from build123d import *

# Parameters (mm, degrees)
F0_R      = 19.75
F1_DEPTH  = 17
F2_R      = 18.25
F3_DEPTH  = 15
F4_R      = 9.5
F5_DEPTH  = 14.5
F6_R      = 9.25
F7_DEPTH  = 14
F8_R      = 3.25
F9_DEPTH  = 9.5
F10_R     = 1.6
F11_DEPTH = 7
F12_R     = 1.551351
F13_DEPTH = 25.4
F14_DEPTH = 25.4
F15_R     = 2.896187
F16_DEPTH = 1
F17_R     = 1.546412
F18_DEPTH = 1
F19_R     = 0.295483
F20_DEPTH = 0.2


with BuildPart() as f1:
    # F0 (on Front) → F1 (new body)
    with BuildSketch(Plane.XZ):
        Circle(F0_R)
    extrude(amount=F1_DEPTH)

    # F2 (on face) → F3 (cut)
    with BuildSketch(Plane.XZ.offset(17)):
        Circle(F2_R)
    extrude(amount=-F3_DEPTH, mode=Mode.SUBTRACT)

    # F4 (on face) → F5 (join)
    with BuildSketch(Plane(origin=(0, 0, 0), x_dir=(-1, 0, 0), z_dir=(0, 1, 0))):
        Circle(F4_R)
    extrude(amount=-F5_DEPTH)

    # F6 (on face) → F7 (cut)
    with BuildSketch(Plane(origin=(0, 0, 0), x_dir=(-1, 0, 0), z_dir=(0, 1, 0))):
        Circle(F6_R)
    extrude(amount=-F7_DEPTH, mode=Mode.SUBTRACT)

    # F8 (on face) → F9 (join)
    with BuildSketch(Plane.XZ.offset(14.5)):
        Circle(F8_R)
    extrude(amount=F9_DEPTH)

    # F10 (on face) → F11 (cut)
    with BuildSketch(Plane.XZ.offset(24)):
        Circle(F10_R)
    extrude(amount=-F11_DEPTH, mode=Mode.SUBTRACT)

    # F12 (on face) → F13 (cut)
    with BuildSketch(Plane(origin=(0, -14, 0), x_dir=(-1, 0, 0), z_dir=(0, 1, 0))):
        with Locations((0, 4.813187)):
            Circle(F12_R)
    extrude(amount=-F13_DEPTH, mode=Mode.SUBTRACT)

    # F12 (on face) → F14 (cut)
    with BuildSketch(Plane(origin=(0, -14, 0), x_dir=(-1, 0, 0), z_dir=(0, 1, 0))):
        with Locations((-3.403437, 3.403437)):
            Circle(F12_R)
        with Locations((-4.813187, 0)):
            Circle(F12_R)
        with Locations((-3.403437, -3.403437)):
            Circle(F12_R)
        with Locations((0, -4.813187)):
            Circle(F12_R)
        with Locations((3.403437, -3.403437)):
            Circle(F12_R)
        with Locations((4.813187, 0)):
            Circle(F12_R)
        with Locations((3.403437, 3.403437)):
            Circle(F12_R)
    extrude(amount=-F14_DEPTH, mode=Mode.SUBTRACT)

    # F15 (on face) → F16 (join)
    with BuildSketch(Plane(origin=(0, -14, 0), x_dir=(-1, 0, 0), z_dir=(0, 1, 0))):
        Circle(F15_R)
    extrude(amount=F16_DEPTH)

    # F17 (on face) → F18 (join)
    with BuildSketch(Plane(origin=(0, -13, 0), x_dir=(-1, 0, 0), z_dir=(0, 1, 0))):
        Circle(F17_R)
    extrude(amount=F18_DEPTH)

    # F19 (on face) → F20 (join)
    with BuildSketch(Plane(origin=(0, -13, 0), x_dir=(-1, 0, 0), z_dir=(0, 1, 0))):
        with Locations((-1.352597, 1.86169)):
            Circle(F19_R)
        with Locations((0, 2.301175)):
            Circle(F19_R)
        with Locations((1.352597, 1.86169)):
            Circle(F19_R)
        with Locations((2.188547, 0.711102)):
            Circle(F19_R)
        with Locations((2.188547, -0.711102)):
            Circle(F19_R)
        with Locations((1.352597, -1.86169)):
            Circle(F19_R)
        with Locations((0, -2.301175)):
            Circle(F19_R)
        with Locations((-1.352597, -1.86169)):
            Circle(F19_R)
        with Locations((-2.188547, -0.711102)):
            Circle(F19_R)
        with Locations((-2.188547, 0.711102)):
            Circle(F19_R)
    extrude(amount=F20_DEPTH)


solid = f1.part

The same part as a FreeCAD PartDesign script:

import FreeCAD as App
import Part
import Sketcher

doc = App.newDocument("Part")
body = doc.addObject("PartDesign::Body", "Body")

sketch1 = doc.addObject("Sketcher::SketchObject", "Sketch")
body.addObject(sketch1)
sketch1.AttachmentSupport = (doc.XZ_Plane, [""])
sketch1.MapMode = "FlatFace"
sketch1.addGeometry(Part.Circle(App.Vector(0, 0, 0), App.Vector(0, 0, 1), 19.75), False)
sketch1.addConstraint([
    Sketcher.Constraint("Coincident", 0, 3, -1, 1),
    Sketcher.Constraint("Diameter", 0, 39.5),
])
pad1 = doc.addObject("PartDesign::Pad", "Pad")
body.addObject(pad1)
pad1.Profile = sketch1
pad1.Length = 17

sketch2 = doc.addObject("Sketcher::SketchObject", "Sketch001")
body.addObject(sketch2)
sketch2.AttachmentSupport = (doc.XZ_Plane, [""])
sketch2.MapMode = "FlatFace"
sketch2.AttachmentOffset = App.Placement(App.Vector(0, 0, 17), App.Rotation())
sketch2.addGeometry(Part.Circle(App.Vector(0, 0, 0), App.Vector(0, 0, 1), 18.25), False)
sketch2.addConstraint([
    Sketcher.Constraint("Coincident", 0, 3, -1, 1),
    Sketcher.Constraint("Diameter", 0, 36.5),
])
pocket1 = doc.addObject("PartDesign::Pocket", "Pocket")
body.addObject(pocket1)
pocket1.Profile = sketch2
pocket1.Length = 15

sketch3 = doc.addObject("Sketcher::SketchObject", "Sketch002")
body.addObject(sketch3)
sketch3.AttachmentSupport = (doc.XZ_Plane, [""])
sketch3.MapMode = "FlatFace"
sketch3.addGeometry(Part.Circle(App.Vector(0, 0, 0), App.Vector(0, 0, 1), 9.5), False)
sketch3.addConstraint([
    Sketcher.Constraint("Coincident", 0, 3, -1, 1),
    Sketcher.Constraint("Diameter", 0, 19.0),
])
pad2 = doc.addObject("PartDesign::Pad", "Pad001")
body.addObject(pad2)
pad2.Profile = sketch3
pad2.Length = 14.5

sketch4 = doc.addObject("Sketcher::SketchObject", "Sketch003")
body.addObject(sketch4)
sketch4.AttachmentSupport = (doc.XZ_Plane, [""])
sketch4.MapMode = "FlatFace"
sketch4.addGeometry(Part.Circle(App.Vector(0, 0, 0), App.Vector(0, 0, 1), 9.25), False)
sketch4.addConstraint([
    Sketcher.Constraint("Coincident", 0, 3, -1, 1),
    Sketcher.Constraint("Diameter", 0, 18.5),
])
pocket2 = doc.addObject("PartDesign::Pocket", "Pocket001")
body.addObject(pocket2)
pocket2.Profile = sketch4
pocket2.Length = 14
pocket2.Reversed = True

sketch5 = doc.addObject("Sketcher::SketchObject", "Sketch004")
body.addObject(sketch5)
sketch5.AttachmentSupport = (doc.XZ_Plane, [""])
sketch5.MapMode = "FlatFace"
sketch5.AttachmentOffset = App.Placement(App.Vector(0, 0, 14.5), App.Rotation())
sketch5.addGeometry(Part.Circle(App.Vector(0, 0, 0), App.Vector(0, 0, 1), 3.25), False)
sketch5.addConstraint([
    Sketcher.Constraint("Coincident", 0, 3, -1, 1),
    Sketcher.Constraint("Diameter", 0, 6.5),
])
pad3 = doc.addObject("PartDesign::Pad", "Pad002")
body.addObject(pad3)
pad3.Profile = sketch5
pad3.Length = 9.5

sketch6 = doc.addObject("Sketcher::SketchObject", "Sketch005")
body.addObject(sketch6)
sketch6.AttachmentSupport = (doc.XZ_Plane, [""])
sketch6.MapMode = "FlatFace"
sketch6.AttachmentOffset = App.Placement(App.Vector(0, 0, 24), App.Rotation())
sketch6.addGeometry(Part.Circle(App.Vector(0, 0, 0), App.Vector(0, 0, 1), 1.6), False)
sketch6.addConstraint([
    Sketcher.Constraint("Coincident", 0, 3, -1, 1),
    Sketcher.Constraint("Diameter", 0, 3.2),
])
pocket3 = doc.addObject("PartDesign::Pocket", "Pocket002")
body.addObject(pocket3)
pocket3.Profile = sketch6
pocket3.Length = 7

sketch7 = doc.addObject("Sketcher::SketchObject", "Sketch006")
body.addObject(sketch7)
sketch7.AttachmentSupport = (doc.XZ_Plane, [""])
sketch7.MapMode = "FlatFace"
sketch7.AttachmentOffset = App.Placement(App.Vector(0, 0, 14), App.Rotation())
sketch7.addGeometry(Part.Circle(App.Vector(0, 4.813187, 0), App.Vector(0, 0, 1), 1.551351), False)
sketch7.addConstraint([
    Sketcher.Constraint("PointOnObject", 0, 3, -2),
    Sketcher.Constraint("Diameter", 0, 3.102702),
    Sketcher.Constraint("DistanceY", -1, 1, 0, 3, 4.813187),
])
pocket4 = doc.addObject("PartDesign::Pocket", "Pocket003")
body.addObject(pocket4)
pocket4.Profile = sketch7
pocket4.Length = 25.4
pocket4.Reversed = True

sketch8 = doc.addObject("Sketcher::SketchObject", "Sketch007")
body.addObject(sketch8)
sketch8.AttachmentSupport = (doc.XZ_Plane, [""])
sketch8.MapMode = "FlatFace"
sketch8.AttachmentOffset = App.Placement(App.Vector(0, 0, 14), App.Rotation())
sketch8.addGeometry([
    Part.Circle(App.Vector(3.403437, 3.403437, 0), App.Vector(0, 0, 1), 1.551351),
    Part.Circle(App.Vector(4.813187, 0, 0), App.Vector(0, 0, 1), 1.551351),
    Part.Circle(App.Vector(3.403437, -3.403437, 0), App.Vector(0, 0, 1), 1.551351),
    Part.Circle(App.Vector(0, -4.813187, 0), App.Vector(0, 0, 1), 1.551351),
    Part.Circle(App.Vector(-3.403437, -3.403437, 0), App.Vector(0, 0, 1), 1.551351),
    Part.Circle(App.Vector(-4.813187, 0, 0), App.Vector(0, 0, 1), 1.551351),
    Part.Circle(App.Vector(-3.403437, 3.403437, 0), App.Vector(0, 0, 1), 1.551351),
], False)
sketch8.addConstraint([
    Sketcher.Constraint("Equal", 0, 1),
    Sketcher.Constraint("Equal", 1, 2),
    Sketcher.Constraint("Equal", 2, 3),
    Sketcher.Constraint("Equal", 3, 4),
    Sketcher.Constraint("Equal", 4, 5),
    Sketcher.Constraint("Equal", 5, 6),
    Sketcher.Constraint("Symmetric", 0, 3, 4, 3, -1, 1),
    Sketcher.Constraint("Symmetric", 1, 3, 5, 3, -1, 1),
    Sketcher.Constraint("Symmetric", 2, 3, 6, 3, -1, 1),
    Sketcher.Constraint("Symmetric", 2, 3, 4, 3, -2),
    Sketcher.Constraint("PointOnObject", 1, 3, -1),
    Sketcher.Constraint("PointOnObject", 3, 3, -2),
    Sketcher.Constraint("Diameter", 0, 3.102702),
    Sketcher.Constraint("DistanceX", 0, 3, 1, 3, 1.40975),
    Sketcher.Constraint("DistanceY", 3, 3, 2, 3, 1.40975),
    Sketcher.Constraint("DistanceX", -1, 1, 0, 3, 3.403437),
    Sketcher.Constraint("DistanceY", -1, 1, 0, 3, 3.403437),
])
pocket5 = doc.addObject("PartDesign::Pocket", "Pocket004")
body.addObject(pocket5)
pocket5.Profile = sketch8
pocket5.Length = 25.4
pocket5.Reversed = True

sketch9 = doc.addObject("Sketcher::SketchObject", "Sketch008")
body.addObject(sketch9)
sketch9.AttachmentSupport = (doc.XZ_Plane, [""])
sketch9.MapMode = "FlatFace"
sketch9.AttachmentOffset = App.Placement(App.Vector(0, 0, 14), App.Rotation())
sketch9.addGeometry(Part.Circle(App.Vector(0, 0, 0), App.Vector(0, 0, 1), 2.896187), False)
sketch9.addConstraint([
    Sketcher.Constraint("Coincident", 0, 3, -1, 1),
    Sketcher.Constraint("Diameter", 0, 5.792374),
])
pad4 = doc.addObject("PartDesign::Pad", "Pad003")
body.addObject(pad4)
pad4.Profile = sketch9
pad4.Length = 1
pad4.Reversed = True

sketch10 = doc.addObject("Sketcher::SketchObject", "Sketch009")
body.addObject(sketch10)
sketch10.AttachmentSupport = (doc.XZ_Plane, [""])
sketch10.MapMode = "FlatFace"
sketch10.AttachmentOffset = App.Placement(App.Vector(0, 0, 13), App.Rotation())
sketch10.addGeometry(Part.Circle(App.Vector(0, 0, 0), App.Vector(0, 0, 1), 1.546412), False)
sketch10.addConstraint([
    Sketcher.Constraint("Coincident", 0, 3, -1, 1),
    Sketcher.Constraint("Diameter", 0, 3.092824),
])
pad5 = doc.addObject("PartDesign::Pad", "Pad004")
body.addObject(pad5)
pad5.Profile = sketch10
pad5.Length = 1
pad5.Reversed = True

sketch11 = doc.addObject("Sketcher::SketchObject", "Sketch010")
body.addObject(sketch11)
sketch11.AttachmentSupport = (doc.XZ_Plane, [""])
sketch11.MapMode = "FlatFace"
sketch11.AttachmentOffset = App.Placement(App.Vector(0, 0, 13), App.Rotation())
sketch11.addGeometry([
    Part.Circle(App.Vector(1.352597, 1.86169, 0), App.Vector(0, 0, 1), 0.295483),
    Part.Circle(App.Vector(0, 2.301175, 0), App.Vector(0, 0, 1), 0.295483),
    Part.Circle(App.Vector(-1.352597, 1.86169, 0), App.Vector(0, 0, 1), 0.295483),
    Part.Circle(App.Vector(-2.188547, 0.711102, 0), App.Vector(0, 0, 1), 0.295483),
    Part.Circle(App.Vector(-2.188547, -0.711102, 0), App.Vector(0, 0, 1), 0.295483),
    Part.Circle(App.Vector(-1.352597, -1.86169, 0), App.Vector(0, 0, 1), 0.295483),
    Part.Circle(App.Vector(0, -2.301175, 0), App.Vector(0, 0, 1), 0.295483),
    Part.Circle(App.Vector(1.352597, -1.86169, 0), App.Vector(0, 0, 1), 0.295483),
    Part.Circle(App.Vector(2.188547, -0.711102, 0), App.Vector(0, 0, 1), 0.295483),
    Part.Circle(App.Vector(2.188547, 0.711102, 0), App.Vector(0, 0, 1), 0.295483),
], False)
sketch11.addConstraint([
    Sketcher.Constraint("Equal", 0, 1),
    Sketcher.Constraint("Equal", 1, 2),
    Sketcher.Constraint("Equal", 2, 3),
    Sketcher.Constraint("Equal", 3, 4),
    Sketcher.Constraint("Equal", 4, 5),
    Sketcher.Constraint("Equal", 5, 6),
    Sketcher.Constraint("Equal", 6, 7),
    Sketcher.Constraint("Equal", 7, 8),
    Sketcher.Constraint("Equal", 8, 9),
    Sketcher.Constraint("Symmetric", 0, 3, 5, 3, -1, 1),
    Sketcher.Constraint("Symmetric", 1, 3, 6, 3, -1, 1),
    Sketcher.Constraint("Symmetric", 2, 3, 7, 3, -1, 1),
    Sketcher.Constraint("Symmetric", 3, 3, 8, 3, -1, 1),
    Sketcher.Constraint("Symmetric", 4, 3, 9, 3, -1, 1),
    Sketcher.Constraint("Symmetric", 0, 3, 2, 3, -2),
    Sketcher.Constraint("Symmetric", 4, 3, 8, 3, -2),
    Sketcher.Constraint("PointOnObject", 1, 3, -2),
    Sketcher.Constraint("Diameter", 0, 0.590966),
    Sketcher.Constraint("DistanceY", -1, 1, 0, 3, 1.86169),
    Sketcher.Constraint("DistanceX", 3, 3, 2, 3, 0.83595),
    Sketcher.Constraint("DistanceX", -1, 1, 0, 3, 1.352597),
    Sketcher.Constraint("DistanceY", -1, 1, 1, 3, 2.301175),
    Sketcher.Constraint("DistanceY", -1, 1, 3, 3, 0.711102),
])
pad6 = doc.addObject("PartDesign::Pad", "Pad005")
body.addObject(pad6)
pad6.Profile = sketch11
pad6.Length = 0.2
pad6.Reversed = True

doc.recompute()
